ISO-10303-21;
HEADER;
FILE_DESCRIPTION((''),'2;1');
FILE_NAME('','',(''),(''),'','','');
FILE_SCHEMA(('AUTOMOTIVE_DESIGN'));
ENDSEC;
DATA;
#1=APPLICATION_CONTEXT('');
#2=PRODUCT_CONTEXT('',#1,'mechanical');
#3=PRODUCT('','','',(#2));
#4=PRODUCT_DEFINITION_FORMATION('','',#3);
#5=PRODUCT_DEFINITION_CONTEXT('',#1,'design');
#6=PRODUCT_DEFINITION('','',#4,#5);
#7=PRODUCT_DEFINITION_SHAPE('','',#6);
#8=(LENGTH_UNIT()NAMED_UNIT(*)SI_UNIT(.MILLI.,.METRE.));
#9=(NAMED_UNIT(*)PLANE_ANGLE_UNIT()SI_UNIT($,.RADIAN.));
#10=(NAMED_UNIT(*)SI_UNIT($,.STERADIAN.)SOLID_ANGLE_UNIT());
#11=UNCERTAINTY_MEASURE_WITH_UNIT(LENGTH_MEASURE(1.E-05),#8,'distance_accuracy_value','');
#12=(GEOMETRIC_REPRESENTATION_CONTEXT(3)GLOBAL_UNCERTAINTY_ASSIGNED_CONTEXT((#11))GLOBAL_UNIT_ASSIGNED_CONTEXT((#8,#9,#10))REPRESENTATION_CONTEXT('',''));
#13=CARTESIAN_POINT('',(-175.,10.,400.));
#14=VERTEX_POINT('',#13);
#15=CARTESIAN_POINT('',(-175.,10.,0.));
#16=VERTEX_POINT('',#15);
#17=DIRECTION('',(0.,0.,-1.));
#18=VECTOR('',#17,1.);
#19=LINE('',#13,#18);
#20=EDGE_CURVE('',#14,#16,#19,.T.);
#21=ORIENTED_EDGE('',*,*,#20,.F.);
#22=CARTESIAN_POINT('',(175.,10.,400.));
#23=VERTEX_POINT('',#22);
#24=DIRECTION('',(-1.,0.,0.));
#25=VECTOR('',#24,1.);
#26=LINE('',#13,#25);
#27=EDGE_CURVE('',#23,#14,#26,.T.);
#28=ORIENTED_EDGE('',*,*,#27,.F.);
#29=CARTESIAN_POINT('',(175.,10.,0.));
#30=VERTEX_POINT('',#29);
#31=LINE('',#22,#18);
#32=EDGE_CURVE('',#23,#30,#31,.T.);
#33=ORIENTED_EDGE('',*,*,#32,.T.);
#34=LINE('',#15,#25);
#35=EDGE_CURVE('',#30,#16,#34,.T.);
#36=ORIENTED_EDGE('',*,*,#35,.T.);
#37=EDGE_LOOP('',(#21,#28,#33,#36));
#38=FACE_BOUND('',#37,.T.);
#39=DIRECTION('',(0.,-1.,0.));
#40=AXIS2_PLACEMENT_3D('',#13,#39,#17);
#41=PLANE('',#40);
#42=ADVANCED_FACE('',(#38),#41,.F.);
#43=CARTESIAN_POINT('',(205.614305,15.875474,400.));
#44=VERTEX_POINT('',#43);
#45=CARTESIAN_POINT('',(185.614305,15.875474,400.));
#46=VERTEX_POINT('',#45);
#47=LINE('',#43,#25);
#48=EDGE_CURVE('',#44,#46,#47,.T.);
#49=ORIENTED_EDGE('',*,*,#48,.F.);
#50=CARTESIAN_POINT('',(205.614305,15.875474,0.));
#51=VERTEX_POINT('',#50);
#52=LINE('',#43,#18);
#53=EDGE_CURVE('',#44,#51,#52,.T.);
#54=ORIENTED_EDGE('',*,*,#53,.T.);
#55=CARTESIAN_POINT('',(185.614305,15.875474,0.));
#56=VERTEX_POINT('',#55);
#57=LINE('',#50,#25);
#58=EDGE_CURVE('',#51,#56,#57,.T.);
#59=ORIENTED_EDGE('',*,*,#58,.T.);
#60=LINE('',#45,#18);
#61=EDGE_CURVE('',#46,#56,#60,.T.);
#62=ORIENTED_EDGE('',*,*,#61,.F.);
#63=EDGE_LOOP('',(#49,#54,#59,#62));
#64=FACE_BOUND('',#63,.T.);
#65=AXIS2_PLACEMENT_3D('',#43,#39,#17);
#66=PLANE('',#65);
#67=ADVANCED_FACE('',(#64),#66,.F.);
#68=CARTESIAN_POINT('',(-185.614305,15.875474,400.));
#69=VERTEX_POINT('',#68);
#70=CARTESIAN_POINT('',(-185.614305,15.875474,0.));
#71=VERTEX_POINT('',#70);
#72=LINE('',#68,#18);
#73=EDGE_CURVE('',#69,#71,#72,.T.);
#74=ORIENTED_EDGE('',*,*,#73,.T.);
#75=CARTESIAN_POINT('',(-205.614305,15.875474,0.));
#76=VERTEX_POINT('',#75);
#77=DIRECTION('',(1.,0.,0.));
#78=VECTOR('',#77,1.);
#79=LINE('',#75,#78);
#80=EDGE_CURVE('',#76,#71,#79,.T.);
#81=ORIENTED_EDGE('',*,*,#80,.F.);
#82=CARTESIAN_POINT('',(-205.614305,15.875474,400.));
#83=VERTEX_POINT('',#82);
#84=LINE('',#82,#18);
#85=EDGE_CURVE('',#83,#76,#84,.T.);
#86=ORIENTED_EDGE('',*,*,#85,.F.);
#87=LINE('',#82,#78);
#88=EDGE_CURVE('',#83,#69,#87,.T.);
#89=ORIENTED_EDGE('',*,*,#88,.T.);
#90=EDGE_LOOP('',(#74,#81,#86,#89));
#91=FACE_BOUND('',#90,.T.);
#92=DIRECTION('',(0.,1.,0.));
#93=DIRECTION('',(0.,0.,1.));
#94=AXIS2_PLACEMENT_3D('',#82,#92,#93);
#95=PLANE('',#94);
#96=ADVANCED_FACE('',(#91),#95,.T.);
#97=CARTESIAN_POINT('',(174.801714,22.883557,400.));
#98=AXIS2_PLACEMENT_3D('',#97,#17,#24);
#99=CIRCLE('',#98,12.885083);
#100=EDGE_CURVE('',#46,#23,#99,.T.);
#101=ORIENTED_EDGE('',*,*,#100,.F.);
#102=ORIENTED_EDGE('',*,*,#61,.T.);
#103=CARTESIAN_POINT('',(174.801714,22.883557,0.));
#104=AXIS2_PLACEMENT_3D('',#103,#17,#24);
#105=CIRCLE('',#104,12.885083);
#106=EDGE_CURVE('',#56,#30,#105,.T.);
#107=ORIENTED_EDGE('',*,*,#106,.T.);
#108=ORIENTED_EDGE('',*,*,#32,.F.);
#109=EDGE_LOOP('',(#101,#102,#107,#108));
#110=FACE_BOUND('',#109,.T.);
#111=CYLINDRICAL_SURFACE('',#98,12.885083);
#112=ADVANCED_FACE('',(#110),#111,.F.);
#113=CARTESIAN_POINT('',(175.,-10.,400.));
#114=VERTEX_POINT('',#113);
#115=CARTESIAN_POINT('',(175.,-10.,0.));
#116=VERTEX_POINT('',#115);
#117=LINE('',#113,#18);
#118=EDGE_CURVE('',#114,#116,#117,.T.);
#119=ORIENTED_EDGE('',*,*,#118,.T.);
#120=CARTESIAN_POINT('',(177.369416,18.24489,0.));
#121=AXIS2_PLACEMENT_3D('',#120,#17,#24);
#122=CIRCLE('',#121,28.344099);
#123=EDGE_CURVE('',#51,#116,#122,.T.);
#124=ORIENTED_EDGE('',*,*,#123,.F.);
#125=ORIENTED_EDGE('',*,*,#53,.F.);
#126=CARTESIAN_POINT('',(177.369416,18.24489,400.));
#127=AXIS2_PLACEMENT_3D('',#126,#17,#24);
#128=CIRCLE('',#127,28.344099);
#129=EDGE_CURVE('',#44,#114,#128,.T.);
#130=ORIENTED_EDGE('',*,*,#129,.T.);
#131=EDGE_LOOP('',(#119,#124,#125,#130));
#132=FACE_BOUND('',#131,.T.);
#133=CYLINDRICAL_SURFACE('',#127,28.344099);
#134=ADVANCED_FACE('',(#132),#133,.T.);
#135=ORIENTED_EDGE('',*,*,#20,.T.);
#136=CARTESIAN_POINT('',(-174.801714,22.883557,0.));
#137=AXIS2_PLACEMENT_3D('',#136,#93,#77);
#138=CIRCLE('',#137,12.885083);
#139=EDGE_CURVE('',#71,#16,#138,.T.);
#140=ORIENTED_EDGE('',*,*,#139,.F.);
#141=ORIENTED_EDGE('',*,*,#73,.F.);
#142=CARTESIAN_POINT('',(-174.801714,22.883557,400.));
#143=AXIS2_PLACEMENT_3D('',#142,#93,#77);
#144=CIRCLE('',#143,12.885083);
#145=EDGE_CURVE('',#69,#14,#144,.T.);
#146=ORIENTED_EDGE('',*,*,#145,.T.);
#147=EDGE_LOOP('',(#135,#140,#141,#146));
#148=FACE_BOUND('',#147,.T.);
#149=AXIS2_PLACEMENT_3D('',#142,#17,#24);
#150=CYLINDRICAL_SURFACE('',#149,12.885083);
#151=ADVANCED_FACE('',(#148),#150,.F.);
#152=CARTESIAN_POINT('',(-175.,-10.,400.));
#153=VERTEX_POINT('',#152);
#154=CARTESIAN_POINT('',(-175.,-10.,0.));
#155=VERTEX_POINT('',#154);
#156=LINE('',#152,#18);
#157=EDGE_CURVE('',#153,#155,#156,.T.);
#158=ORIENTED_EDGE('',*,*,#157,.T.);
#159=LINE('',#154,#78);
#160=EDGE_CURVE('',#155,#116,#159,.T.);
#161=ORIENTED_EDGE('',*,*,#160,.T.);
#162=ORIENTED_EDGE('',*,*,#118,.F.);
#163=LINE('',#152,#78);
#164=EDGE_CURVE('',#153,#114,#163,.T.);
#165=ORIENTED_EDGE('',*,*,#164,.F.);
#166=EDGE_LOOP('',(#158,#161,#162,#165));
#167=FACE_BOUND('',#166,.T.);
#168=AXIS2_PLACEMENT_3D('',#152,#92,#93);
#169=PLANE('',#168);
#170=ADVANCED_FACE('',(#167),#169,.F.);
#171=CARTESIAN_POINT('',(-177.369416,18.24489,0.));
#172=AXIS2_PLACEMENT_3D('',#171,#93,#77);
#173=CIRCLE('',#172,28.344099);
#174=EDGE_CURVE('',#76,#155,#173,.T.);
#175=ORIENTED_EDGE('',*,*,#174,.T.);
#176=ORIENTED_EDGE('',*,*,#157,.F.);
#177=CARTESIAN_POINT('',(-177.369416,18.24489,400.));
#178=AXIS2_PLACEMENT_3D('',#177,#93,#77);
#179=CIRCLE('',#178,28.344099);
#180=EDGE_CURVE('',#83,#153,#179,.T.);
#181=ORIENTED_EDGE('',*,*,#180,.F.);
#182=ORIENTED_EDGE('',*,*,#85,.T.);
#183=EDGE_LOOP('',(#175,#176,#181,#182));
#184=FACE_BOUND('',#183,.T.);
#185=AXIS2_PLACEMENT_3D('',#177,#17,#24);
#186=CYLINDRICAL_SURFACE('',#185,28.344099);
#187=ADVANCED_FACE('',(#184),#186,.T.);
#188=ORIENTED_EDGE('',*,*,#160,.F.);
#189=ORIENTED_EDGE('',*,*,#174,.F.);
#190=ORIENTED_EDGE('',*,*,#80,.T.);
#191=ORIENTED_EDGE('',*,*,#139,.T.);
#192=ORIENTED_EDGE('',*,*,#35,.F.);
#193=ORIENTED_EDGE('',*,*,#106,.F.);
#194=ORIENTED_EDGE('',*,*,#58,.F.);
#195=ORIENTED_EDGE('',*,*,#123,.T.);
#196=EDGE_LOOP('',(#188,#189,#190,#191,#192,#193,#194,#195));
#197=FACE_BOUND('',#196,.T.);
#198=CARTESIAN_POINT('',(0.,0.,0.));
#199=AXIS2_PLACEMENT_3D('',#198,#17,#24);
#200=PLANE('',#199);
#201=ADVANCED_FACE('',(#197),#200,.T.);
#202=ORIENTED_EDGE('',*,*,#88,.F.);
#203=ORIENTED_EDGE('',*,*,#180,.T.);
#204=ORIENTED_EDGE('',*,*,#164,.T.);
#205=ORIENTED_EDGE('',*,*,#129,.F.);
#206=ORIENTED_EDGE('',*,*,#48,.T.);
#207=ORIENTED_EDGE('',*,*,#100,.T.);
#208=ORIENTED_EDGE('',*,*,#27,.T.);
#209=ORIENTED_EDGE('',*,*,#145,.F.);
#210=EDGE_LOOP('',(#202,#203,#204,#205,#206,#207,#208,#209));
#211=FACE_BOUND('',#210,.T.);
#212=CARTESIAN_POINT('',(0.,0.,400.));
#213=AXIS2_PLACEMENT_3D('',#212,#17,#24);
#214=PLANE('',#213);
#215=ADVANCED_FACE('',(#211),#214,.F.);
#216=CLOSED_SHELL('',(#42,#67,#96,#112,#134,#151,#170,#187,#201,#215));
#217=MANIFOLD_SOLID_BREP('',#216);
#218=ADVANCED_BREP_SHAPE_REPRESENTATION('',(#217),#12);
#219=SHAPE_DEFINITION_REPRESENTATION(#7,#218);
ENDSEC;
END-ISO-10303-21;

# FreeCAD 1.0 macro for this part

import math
import FreeCAD as App
import Part
import Sketcher
Q = App.Units.Quantity


def add_polygon(sketch, points):
    """Adds a closed chain of lines whose ends are joined by coincident constraints."""
    first, n = sketch.GeometryCount, len(points)
    for a, b in zip(points, points[1:] + points[:1]):
        sketch.addGeometry(Part.LineSegment(App.Vector(*a, 0), App.Vector(*b, 0)), False)
    for i in range(n):
        sketch.addConstraint(Sketcher.Constraint("Coincident", first + i, 2, first + (i + 1) % n, 1))

doc = App.newDocument("Part")
body = doc.addObject("PartDesign::Body", "Body")

# Sketch on XY plane
sketch1 = body.newObject("Sketcher::SketchObject", "Sketch")
sketch1.AttachmentSupport = (doc.getObject("XY_Plane"), [""])
sketch1.MapMode = "FlatFace"
add_polygon(sketch1, [(-175, 10), (-175, -10), (175, -10), (175, 10)])  # lines 0-3
sketch1.addConstraint(Sketcher.Constraint("Vertical", 0))
sketch1.addConstraint(Sketcher.Constraint("Horizontal", 1))
sketch1.addConstraint(Sketcher.Constraint("Vertical", 2))
sketch1.addConstraint(Sketcher.Constraint("Horizontal", 3))
sketch1.addConstraint(Sketcher.Constraint("Symmetric", 0, 2, 2, 2, -1, 1))
sketch1.addConstraint(Sketcher.Constraint("DistanceX", 1, 1, 1, 2, Q("350 mm")))
sketch1.addConstraint(Sketcher.Constraint("DistanceY", 0, 2, 0, 1, Q("20 mm")))
pad1 = body.newObject("PartDesign::Pad", "Pad")
pad1.Profile = sketch1
pad1.Length = 400

# Sketch on XY plane
sketch2 = body.newObject("Sketcher::SketchObject", "Sketch001")
sketch2.AttachmentSupport = (doc.getObject("XY_Plane"), [""])
sketch2.MapMode = "FlatFace"
sketch2.addGeometry(Part.LineSegment(App.Vector(-175, -10, 0), App.Vector(-175, 10, 0)), False)
sketch2.addGeometry(Part.ArcOfCircle(Part.Circle(App.Vector(-174.801714, 22.883557, 0), App.Vector(0, 0, 1), 12.885083), math.radians(-147.051077), math.radians(-90.881749)), False)
sketch2.addGeometry(Part.LineSegment(App.Vector(-185.614305, 15.875474, 0), App.Vector(-205.614305, 15.875474, 0)), False)
sketch2.addGeometry(Part.ArcOfCircle(Part.Circle(App.Vector(-177.369416, 18.24489, 0), App.Vector(0, 0, 1), 28.344099), math.radians(-175.204782), math.radians(-85.204782)), False)
sketch2.addConstraint(Sketcher.Constraint("Coincident", 0, 2, 1, 2))
sketch2.addConstraint(Sketcher.Constraint("Coincident", 1, 1, 2, 1))
sketch2.addConstraint(Sketcher.Constraint("Coincident", 2, 2, 3, 1))
sketch2.addConstraint(Sketcher.Constraint("Coincident", 3, 2, 0, 1))
sketch2.addConstraint(Sketcher.Constraint("Vertical", 0))
sketch2.addConstraint(Sketcher.Constraint("Horizontal", 2))
sketch2.addConstraint(Sketcher.Constraint("Equal", 2, 0))
sketch2.addConstraint(Sketcher.Constraint("DistanceX", 2, 2, 2, 1, Q("20 mm")))
sketch2.addConstraint(Sketcher.Constraint("DistanceX", 0, 2, -1, 1, Q("175 mm")))
sketch2.addConstraint(Sketcher.Constraint("DistanceY", -1, 1, 0, 2, Q("10 mm")))
sketch2.addConstraint(Sketcher.Constraint("Radius", 3, Q("28.344099 mm")))
sketch2.addConstraint(Sketcher.Constraint("Radius", 1, Q("12.885083 mm")))
sketch2.addConstraint(Sketcher.Constraint("DistanceX", 3, 3, 1, 3, Q("2.567702 mm")))
sketch2.addConstraint(Sketcher.Constraint("DistanceY", -1, 1, 3, 3, Q("18.24489 mm")))
pad2 = body.newObject("PartDesign::Pad", "Pad001")
pad2.Profile = sketch2
pad2.Length = 400
doc.recompute()

mirrored = body.newObject("PartDesign::Mirrored", "Mirrored")
mirrored.Originals = [pad2]
mirrored.MirrorPlane = (doc.getObject("YZ_Plane"), [""])
body.Tip = mirrored

doc.recompute()
